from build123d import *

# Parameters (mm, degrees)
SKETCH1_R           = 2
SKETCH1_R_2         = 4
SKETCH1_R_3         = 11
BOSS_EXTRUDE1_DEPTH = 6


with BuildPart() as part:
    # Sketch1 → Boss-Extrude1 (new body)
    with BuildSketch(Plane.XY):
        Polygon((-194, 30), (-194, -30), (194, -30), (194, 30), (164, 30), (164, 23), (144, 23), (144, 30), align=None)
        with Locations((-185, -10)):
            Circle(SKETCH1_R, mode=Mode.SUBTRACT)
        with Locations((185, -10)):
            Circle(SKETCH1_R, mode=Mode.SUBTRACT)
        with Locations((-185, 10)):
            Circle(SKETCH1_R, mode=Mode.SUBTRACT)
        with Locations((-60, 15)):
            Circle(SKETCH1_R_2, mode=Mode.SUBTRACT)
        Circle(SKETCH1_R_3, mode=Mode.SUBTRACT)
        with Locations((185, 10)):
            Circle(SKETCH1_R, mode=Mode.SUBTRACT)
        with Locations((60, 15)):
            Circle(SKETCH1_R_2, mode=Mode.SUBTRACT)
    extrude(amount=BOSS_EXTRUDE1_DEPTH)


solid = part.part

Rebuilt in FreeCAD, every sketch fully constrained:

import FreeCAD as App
import Part
import Sketcher


def add_polygon(sketch, points):
    """Adds a closed chain of lines whose ends are joined by coincident constraints."""
    first, n = sketch.GeometryCount, len(points)
    for a, b in zip(points, points[1:] + points[:1]):
        sketch.addGeometry(Part.LineSegment(App.Vector(*a, 0), App.Vector(*b, 0)), False)
    for i in range(n):
        sketch.addConstraint(Sketcher.Constraint("Coincident", first + i, 2, first + (i + 1) % n, 1))

doc = App.newDocument("Part")
body = doc.addObject("PartDesign::Body", "Body")

sketch1 = body.newObject("Sketcher::SketchObject", "Sketch")
sketch1.AttachmentSupport = (doc.getObject("XY_Plane"), [""])
sketch1.MapMode = "FlatFace"
add_polygon(sketch1, [(-194, 30), (-194, -30), (194, -30), (194, 30), (164, 30), (164, 23), (144, 23), (144, 30)])
sketch1.addGeometry(Part.Circle(App.Vector(-185, -10, 0), App.Vector(0, 0, 1), 2), False)
sketch1.addGeometry(Part.Circle(App.Vector(0, 0, 0), App.Vector(0, 0, 1), 11), False)
sketch1.addGeometry(Part.Circle(App.Vector(185, -10, 0), App.Vector(0, 0, 1), 2), False)
sketch1.addGeometry(Part.Circle(App.Vector(-185, 10, 0), App.Vector(0, 0, 1), 2), False)
sketch1.addGeometry(Part.Circle(App.Vector(-60, 15, 0), App.Vector(0, 0, 1), 4), False)
sketch1.addGeometry(Part.Circle(App.Vector(185, 10, 0), App.Vector(0, 0, 1), 2), False)
sketch1.addGeometry(Part.Circle(App.Vector(60, 15, 0), App.Vector(0, 0, 1), 4), False)
sketch1.addConstraint(Sketcher.Constraint("Vertical", 0))
sketch1.addConstraint(Sketcher.Constraint("Horizontal", 1))
sketch1.addConstraint(Sketcher.Constraint("Vertical", 2))
sketch1.addConstraint(Sketcher.Constraint("Horizontal", 3))
sketch1.addConstraint(Sketcher.Constraint("Vertical", 4))
sketch1.addConstraint(Sketcher.Constraint("Horizontal", 5))
sketch1.addConstraint(Sketcher.Constraint("Vertical", 6))
sketch1.addConstraint(Sketcher.Constraint("Horizontal", 7))
sketch1.addConstraint(Sketcher.Constraint("Coincident", 9, 3, -1, 1))
sketch1.addConstraint(Sketcher.Constraint("Equal", 8, 10))
sketch1.addConstraint(Sketcher.Constraint("Equal", 10, 11))
sketch1.addConstraint(Sketcher.Constraint("Equal", 11, 13))
sketch1.addConstraint(Sketcher.Constraint("Equal", 12, 14))
sketch1.addConstraint(Sketcher.Constraint("Symmetric", 10, 3, 11, 3, -1, 1))
sketch1.addConstraint(Sketcher.Constraint("Symmetric", 8, 3, 13, 3, -1, 1))
sketch1.addConstraint(Sketcher.Constraint("Symmetric", 0, 2, 2, 2, -1, 1))
sketch1.addConstraint(Sketcher.Constraint("Symmetric", 8, 3, 10, 3, -2))
sketch1.addConstraint(Sketcher.Constraint("Symmetric", 12, 3, 14, 3, -2))
sketch1.addConstraint(Sketcher.Constraint("Horizontal", 3, 2, 6, 2))
sketch1.addConstraint(Sketcher.Constraint("Diameter", 8, 4.0))
sketch1.addConstraint(Sketcher.Constraint("Diameter", 9, 22.0))
sketch1.addConstraint(Sketcher.Constraint("Diameter", 12, 8.0))
sketch1.addConstraint(Sketcher.Constraint("DistanceX", 1, 1, 1, 2, 388.0))
sketch1.addConstraint(Sketcher.Constraint("DistanceX", 3, 2, 3, 1, 30.0))
sketch1.addConstraint(Sketcher.Constraint("DistanceX", 5, 2, 5, 1, 20.0))
sketch1.addConstraint(Sketcher.Constraint("DistanceY", 0, 2, 0, 1, 60.0))
sketch1.addConstraint(Sketcher.Constraint("DistanceY", 4, 2, 4, 1, 7.0))
sketch1.addConstraint(Sketcher.Constraint("DistanceX", 8, 3, -1, 1, 185.0))
sketch1.addConstraint(Sketcher.Constraint("DistanceY", 8, 3, -1, 1, 10.0))
sketch1.addConstraint(Sketcher.Constraint("DistanceX", 12, 3, -1, 1, 60.0))
sketch1.addConstraint(Sketcher.Constraint("DistanceY", -1, 1, 12, 3, 15.0))
pad1 = body.newObject("PartDesign::Pad", "Pad")
pad1.Profile = sketch1
pad1.Length = 6

doc.recompute()
